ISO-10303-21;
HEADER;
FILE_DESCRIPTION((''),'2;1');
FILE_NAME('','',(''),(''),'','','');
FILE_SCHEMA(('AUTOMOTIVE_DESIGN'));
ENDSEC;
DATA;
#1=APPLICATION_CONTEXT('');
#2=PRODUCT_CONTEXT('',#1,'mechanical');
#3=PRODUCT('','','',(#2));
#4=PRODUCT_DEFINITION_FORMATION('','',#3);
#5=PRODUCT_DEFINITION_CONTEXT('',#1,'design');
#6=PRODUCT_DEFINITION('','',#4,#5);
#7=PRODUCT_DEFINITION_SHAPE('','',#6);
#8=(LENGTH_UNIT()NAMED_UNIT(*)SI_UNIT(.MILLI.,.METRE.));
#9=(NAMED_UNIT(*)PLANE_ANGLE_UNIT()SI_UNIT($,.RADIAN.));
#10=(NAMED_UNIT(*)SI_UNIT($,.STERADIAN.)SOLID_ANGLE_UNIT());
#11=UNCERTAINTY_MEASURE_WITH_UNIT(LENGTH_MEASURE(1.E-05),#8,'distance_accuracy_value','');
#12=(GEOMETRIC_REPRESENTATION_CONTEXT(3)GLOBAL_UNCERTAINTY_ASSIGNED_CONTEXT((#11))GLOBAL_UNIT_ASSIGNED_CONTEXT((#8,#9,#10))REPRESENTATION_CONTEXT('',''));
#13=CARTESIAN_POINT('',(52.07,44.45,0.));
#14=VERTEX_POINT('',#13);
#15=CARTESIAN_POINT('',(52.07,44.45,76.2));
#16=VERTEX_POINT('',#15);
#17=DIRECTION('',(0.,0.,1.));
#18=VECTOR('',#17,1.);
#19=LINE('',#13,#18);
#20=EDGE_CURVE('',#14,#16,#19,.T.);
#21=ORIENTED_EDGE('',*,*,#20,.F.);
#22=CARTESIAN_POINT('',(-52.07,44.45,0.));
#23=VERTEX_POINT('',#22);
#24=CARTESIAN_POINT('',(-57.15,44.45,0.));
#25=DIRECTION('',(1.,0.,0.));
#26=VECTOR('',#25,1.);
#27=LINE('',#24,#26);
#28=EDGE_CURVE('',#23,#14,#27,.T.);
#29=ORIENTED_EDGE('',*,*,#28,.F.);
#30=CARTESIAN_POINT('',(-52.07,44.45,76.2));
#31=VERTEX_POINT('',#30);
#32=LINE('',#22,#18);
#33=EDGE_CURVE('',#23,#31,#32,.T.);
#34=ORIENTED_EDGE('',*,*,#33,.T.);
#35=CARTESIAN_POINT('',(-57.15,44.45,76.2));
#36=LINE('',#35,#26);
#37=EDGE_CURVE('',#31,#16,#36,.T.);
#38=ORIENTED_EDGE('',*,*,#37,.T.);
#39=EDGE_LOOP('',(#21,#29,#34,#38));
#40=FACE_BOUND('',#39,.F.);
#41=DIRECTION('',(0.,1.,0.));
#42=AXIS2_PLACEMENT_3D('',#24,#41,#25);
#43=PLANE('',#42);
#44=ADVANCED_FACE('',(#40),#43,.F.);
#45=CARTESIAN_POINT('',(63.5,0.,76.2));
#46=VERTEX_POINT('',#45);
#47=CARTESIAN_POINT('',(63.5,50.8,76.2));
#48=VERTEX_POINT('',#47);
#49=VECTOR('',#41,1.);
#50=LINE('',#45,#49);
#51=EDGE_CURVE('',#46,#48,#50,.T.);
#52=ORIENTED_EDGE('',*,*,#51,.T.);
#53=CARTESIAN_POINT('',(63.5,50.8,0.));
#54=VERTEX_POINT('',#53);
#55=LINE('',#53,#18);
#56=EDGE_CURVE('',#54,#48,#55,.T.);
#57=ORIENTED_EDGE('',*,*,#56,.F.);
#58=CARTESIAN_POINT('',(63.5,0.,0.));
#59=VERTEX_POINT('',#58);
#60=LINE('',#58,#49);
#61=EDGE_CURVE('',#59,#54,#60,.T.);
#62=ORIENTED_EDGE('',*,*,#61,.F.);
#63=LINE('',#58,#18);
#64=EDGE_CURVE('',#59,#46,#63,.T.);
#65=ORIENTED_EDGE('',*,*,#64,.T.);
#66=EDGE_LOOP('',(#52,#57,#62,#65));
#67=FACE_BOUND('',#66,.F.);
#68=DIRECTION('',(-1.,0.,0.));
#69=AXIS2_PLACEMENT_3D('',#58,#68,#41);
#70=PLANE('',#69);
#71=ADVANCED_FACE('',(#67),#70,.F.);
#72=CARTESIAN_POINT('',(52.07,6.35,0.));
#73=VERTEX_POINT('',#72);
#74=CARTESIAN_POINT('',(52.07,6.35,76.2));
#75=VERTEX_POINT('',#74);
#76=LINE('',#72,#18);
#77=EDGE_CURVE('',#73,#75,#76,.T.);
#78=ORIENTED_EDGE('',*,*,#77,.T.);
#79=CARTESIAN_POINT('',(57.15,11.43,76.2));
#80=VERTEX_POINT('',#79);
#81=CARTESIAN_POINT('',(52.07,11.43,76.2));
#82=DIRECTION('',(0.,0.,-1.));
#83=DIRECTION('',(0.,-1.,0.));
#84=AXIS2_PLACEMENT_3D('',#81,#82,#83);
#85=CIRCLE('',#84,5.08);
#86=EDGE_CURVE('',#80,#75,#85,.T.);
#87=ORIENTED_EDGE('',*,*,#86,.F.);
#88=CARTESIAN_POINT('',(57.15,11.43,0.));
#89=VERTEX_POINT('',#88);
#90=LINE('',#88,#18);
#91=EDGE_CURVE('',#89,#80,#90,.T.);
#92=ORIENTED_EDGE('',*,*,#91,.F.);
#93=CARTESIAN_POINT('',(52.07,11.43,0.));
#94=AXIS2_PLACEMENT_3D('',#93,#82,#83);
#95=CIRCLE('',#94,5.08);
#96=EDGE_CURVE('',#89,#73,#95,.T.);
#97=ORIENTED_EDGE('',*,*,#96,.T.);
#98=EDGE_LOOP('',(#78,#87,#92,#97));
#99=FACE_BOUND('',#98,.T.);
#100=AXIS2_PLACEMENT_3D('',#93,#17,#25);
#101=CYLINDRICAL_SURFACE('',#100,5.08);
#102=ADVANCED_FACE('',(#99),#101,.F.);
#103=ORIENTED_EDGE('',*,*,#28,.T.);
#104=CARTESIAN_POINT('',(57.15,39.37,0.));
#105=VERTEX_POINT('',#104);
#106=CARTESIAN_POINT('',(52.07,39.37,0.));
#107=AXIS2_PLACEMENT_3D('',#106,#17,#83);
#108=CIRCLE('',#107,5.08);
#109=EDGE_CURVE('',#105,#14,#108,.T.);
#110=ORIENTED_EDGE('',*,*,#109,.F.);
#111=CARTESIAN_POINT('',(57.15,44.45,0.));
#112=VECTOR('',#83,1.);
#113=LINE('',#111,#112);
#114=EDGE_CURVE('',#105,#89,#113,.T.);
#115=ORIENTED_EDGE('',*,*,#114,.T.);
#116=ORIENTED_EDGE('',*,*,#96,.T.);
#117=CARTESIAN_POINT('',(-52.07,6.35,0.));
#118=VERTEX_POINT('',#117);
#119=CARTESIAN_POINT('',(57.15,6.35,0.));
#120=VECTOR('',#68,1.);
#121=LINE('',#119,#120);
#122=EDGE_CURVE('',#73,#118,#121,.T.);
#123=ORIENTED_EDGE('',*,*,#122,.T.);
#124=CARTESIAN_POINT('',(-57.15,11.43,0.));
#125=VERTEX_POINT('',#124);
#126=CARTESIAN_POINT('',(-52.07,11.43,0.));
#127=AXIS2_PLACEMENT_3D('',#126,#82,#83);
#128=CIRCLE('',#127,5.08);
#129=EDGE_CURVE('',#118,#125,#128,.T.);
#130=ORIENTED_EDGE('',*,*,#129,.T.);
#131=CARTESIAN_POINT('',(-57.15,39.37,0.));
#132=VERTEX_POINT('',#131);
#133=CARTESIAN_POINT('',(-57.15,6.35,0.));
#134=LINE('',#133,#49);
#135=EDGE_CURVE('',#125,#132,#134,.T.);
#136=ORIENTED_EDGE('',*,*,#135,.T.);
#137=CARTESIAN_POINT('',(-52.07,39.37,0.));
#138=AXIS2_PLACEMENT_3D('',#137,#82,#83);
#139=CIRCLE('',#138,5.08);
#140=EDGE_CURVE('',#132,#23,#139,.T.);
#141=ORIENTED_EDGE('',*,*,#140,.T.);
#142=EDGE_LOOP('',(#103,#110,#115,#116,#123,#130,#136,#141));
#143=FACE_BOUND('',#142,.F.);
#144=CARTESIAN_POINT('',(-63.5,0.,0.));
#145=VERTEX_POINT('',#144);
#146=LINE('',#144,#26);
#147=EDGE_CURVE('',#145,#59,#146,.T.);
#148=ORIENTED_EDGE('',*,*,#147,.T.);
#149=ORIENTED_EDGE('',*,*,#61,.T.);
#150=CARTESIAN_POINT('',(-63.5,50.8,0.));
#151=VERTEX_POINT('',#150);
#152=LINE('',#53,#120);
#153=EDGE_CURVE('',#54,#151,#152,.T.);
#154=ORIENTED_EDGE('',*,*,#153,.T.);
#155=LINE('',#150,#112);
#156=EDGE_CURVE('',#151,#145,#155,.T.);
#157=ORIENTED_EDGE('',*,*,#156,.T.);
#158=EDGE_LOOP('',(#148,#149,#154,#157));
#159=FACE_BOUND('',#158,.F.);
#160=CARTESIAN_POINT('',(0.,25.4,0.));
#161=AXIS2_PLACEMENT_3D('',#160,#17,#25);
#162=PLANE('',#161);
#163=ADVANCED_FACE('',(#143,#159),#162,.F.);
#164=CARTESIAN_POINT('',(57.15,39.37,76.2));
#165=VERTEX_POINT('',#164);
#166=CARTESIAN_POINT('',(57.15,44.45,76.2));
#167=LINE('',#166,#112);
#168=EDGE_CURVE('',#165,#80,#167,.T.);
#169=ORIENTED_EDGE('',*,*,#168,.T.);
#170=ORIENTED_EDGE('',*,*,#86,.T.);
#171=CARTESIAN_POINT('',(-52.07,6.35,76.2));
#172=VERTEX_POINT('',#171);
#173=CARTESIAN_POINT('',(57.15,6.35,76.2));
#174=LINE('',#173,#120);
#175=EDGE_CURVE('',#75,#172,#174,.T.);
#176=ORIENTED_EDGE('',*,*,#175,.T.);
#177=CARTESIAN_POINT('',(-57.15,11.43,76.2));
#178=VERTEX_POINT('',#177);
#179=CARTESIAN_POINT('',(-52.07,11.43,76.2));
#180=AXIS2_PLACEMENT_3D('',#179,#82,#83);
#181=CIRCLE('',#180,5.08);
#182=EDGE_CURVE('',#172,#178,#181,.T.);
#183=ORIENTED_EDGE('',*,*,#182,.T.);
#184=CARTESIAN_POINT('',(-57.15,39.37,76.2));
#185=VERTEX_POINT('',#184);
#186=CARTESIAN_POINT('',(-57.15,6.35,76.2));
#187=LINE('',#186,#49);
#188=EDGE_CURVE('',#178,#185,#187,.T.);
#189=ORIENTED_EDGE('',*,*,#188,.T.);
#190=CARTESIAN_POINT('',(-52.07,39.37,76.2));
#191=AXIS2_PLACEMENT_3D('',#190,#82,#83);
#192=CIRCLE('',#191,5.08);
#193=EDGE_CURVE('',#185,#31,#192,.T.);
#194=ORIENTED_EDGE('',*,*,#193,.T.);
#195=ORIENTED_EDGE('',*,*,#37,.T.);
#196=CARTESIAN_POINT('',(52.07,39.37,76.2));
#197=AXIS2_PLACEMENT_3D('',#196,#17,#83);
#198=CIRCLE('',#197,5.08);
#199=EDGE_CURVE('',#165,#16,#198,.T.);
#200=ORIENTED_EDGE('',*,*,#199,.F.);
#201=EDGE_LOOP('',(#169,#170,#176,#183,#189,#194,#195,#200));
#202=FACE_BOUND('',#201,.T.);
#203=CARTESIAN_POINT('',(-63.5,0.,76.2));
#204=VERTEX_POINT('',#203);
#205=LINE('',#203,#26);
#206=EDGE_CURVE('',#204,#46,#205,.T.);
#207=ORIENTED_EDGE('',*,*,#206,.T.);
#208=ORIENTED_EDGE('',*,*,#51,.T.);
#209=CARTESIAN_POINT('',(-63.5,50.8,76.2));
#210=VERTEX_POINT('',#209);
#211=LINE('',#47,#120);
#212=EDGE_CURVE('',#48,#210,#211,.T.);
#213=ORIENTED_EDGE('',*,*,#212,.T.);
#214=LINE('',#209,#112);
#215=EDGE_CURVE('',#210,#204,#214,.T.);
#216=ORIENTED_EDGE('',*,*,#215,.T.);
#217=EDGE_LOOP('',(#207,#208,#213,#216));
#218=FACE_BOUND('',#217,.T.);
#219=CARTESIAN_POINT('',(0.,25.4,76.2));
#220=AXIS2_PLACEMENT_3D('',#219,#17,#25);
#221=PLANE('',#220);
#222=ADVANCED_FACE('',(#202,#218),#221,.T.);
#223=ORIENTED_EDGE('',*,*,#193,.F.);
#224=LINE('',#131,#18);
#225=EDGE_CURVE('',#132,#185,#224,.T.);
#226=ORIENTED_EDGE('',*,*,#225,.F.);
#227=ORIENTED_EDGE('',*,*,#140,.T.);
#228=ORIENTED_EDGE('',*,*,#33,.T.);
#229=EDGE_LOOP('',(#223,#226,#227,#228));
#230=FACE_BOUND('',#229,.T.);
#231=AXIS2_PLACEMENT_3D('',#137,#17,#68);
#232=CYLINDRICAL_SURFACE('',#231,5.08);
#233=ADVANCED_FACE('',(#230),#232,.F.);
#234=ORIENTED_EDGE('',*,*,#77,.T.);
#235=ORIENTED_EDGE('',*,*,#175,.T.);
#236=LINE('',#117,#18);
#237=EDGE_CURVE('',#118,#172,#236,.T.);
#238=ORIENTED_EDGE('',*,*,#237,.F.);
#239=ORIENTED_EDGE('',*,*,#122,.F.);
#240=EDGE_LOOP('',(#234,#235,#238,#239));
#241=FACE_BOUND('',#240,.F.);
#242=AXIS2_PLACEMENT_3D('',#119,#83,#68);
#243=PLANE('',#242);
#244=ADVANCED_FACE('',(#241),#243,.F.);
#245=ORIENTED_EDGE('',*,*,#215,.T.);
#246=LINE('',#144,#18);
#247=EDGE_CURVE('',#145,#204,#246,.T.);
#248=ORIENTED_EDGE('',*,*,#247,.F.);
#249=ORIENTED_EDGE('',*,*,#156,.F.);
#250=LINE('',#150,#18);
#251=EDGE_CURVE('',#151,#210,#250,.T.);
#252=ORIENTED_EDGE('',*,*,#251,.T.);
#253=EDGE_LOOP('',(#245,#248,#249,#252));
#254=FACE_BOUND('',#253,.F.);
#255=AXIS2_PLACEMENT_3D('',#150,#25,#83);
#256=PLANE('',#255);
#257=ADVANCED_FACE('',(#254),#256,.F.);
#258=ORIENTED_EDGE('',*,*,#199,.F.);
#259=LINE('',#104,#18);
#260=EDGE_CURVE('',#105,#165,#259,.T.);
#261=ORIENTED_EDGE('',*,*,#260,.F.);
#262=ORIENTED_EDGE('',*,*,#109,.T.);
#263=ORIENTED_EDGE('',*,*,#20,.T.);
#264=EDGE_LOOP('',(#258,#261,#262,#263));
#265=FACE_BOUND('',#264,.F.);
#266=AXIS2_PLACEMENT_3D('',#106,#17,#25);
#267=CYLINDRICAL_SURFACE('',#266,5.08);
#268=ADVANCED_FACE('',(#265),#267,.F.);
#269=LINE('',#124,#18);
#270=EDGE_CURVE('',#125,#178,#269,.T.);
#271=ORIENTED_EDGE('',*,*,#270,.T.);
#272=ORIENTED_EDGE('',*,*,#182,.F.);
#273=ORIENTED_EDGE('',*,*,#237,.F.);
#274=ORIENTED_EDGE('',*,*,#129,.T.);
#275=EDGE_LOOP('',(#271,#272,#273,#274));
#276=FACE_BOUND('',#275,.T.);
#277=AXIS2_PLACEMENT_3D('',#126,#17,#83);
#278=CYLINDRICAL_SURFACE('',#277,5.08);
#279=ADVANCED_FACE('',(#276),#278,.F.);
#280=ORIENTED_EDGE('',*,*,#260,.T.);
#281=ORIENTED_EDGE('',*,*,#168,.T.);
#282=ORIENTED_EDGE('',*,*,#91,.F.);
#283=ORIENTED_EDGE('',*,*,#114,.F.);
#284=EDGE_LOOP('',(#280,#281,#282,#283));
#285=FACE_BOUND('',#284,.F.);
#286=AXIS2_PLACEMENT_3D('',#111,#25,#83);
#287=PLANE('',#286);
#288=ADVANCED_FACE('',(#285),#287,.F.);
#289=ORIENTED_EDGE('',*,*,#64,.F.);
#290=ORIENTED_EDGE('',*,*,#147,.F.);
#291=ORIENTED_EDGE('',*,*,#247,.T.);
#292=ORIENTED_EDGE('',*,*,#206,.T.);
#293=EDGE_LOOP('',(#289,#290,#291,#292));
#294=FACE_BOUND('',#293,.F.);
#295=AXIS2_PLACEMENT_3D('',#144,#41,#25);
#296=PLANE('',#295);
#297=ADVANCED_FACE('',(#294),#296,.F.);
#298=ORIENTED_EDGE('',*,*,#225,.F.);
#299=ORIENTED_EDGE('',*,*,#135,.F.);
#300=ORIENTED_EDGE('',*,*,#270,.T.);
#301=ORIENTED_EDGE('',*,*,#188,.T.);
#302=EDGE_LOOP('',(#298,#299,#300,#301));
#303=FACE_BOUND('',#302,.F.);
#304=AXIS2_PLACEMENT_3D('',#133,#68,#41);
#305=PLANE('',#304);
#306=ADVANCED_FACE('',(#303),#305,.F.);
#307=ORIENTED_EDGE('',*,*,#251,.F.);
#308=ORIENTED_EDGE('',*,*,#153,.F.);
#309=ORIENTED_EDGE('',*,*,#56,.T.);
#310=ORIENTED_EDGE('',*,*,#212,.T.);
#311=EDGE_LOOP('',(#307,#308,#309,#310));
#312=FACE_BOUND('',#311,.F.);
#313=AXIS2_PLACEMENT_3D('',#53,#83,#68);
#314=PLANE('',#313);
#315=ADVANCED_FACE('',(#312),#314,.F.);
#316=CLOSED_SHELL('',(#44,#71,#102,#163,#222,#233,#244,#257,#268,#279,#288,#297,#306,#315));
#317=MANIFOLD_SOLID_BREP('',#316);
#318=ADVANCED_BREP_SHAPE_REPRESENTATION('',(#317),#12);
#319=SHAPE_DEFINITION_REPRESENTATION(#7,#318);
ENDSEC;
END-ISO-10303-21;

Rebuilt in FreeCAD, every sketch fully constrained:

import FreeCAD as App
import Part
import Sketcher
Q = App.Units.Quantity


def edges_at(feature, points):
    """Names of the edges that pass closest to the given points."""
    edges = feature.Shape.Edges
    near = lambda p: min(range(len(edges)), key=lambda i: edges[i].distToShape(Part.Vertex(*p))[0])
    return sorted({f"Edge{near(p) + 1}" for p in points})


def add_polygon(sketch, points):
    """Adds a closed chain of lines whose ends are joined by coincident constraints."""
    first, n = sketch.GeometryCount, len(points)
    for a, b in zip(points, points[1:] + points[:1]):
        sketch.addGeometry(Part.LineSegment(App.Vector(*a, 0), App.Vector(*b, 0)), False)
    for i in range(n):
        sketch.addConstraint(Sketcher.Constraint("Coincident", first + i, 2, first + (i + 1) % n, 1))

doc = App.newDocument("Part")
params = doc.addObject("Spreadsheet::Sheet", "Params")
for row, (alias, value) in enumerate([
    ("sketch1_width", "5 in"),
    ("sketch1_height", "2 in"),
    ("sketch1_width2", "4.5 in"),
    ("sketch1_height2", "1.5 in"),
    ("pad1_length", "3 in"),
    ("fillet_radius", "0.2 in"),
], start=1):
    params.set(f"A{row}", alias)
    params.set(f"B{row}", "=" + value)
    params.setAlias(f"B{row}", alias)

body = doc.addObject("PartDesign::Body", "Body")

# Sketch on XY plane
sketch1 = doc.addObject("Sketcher::SketchObject", "Sketch")
body.addObject(sketch1)
sketch1.AttachmentSupport = (doc.XY_Plane, [""])
sketch1.MapMode = "FlatFace"
add_polygon(sketch1, [(-64, 0), (64, 0), (64, 51), (-64, 51)])  # lines 0-3
add_polygon(sketch1, [(57, 44), (57, 6), (-57, 6), (-57, 44)])  # lines 4-7
sketch1.addConstraint(Sketcher.Constraint("Horizontal", 0))
sketch1.addConstraint(Sketcher.Constraint("Vertical", 1))
sketch1.addConstraint(Sketcher.Constraint("Horizontal", 2))
sketch1.addConstraint(Sketcher.Constraint("Vertical", 3))
sketch1.addConstraint(Sketcher.Constraint("Vertical", 4))
sketch1.addConstraint(Sketcher.Constraint("Horizontal", 5))
sketch1.addConstraint(Sketcher.Constraint("Vertical", 6))
sketch1.addConstraint(Sketcher.Constraint("Horizontal", 7))
sketch1.addConstraint(Sketcher.Constraint("Symmetric", 0, 2, 3, 2, -1, 1))
sketch1.addConstraint(Sketcher.Constraint("DistanceX", 0, 1, 0, 2, Q("5 in")))
sketch1.addConstraint(Sketcher.Constraint("DistanceY", 1, 1, 1, 2, Q("2 in")))
sketch1.addConstraint(Sketcher.Constraint("DistanceX", 5, 2, 5, 1, Q("4.5 in")))
sketch1.addConstraint(Sketcher.Constraint("DistanceY", 4, 2, 4, 1, Q("1.5 in")))
sketch1.addConstraint(Sketcher.Constraint("DistanceX", -1, 1, 4, 2, Q("2.25 in")))
sketch1.addConstraint(Sketcher.Constraint("DistanceY", -1, 1, 4, 2, Q("0.25 in")))
sketch1.setExpression("Constraints[17]", "Params.sketch1_width")
sketch1.setExpression("Constraints[18]", "Params.sketch1_height")
sketch1.setExpression("Constraints[19]", "Params.sketch1_width2")
sketch1.setExpression("Constraints[20]", "Params.sketch1_height2")
pad1 = doc.addObject("PartDesign::Pad", "Pad")
body.addObject(pad1)
pad1.Profile = sketch1
pad1.setExpression("Length", "Params.pad1_length")
doc.recompute()

fillet = doc.addObject("PartDesign::Fillet", "Fillet")
body.addObject(fillet)
fillet.Base = (pad1, edges_at(pad1, [
    (-57.15, 44.45, 38.1),
    (57.15, 44.45, 38.1),
    (-57.15, 6.35, 38.1),
    (57.15, 6.35, 38.1),
]))
fillet.setExpression("Radius", "Params.fillet_radius")

doc.recompute()
